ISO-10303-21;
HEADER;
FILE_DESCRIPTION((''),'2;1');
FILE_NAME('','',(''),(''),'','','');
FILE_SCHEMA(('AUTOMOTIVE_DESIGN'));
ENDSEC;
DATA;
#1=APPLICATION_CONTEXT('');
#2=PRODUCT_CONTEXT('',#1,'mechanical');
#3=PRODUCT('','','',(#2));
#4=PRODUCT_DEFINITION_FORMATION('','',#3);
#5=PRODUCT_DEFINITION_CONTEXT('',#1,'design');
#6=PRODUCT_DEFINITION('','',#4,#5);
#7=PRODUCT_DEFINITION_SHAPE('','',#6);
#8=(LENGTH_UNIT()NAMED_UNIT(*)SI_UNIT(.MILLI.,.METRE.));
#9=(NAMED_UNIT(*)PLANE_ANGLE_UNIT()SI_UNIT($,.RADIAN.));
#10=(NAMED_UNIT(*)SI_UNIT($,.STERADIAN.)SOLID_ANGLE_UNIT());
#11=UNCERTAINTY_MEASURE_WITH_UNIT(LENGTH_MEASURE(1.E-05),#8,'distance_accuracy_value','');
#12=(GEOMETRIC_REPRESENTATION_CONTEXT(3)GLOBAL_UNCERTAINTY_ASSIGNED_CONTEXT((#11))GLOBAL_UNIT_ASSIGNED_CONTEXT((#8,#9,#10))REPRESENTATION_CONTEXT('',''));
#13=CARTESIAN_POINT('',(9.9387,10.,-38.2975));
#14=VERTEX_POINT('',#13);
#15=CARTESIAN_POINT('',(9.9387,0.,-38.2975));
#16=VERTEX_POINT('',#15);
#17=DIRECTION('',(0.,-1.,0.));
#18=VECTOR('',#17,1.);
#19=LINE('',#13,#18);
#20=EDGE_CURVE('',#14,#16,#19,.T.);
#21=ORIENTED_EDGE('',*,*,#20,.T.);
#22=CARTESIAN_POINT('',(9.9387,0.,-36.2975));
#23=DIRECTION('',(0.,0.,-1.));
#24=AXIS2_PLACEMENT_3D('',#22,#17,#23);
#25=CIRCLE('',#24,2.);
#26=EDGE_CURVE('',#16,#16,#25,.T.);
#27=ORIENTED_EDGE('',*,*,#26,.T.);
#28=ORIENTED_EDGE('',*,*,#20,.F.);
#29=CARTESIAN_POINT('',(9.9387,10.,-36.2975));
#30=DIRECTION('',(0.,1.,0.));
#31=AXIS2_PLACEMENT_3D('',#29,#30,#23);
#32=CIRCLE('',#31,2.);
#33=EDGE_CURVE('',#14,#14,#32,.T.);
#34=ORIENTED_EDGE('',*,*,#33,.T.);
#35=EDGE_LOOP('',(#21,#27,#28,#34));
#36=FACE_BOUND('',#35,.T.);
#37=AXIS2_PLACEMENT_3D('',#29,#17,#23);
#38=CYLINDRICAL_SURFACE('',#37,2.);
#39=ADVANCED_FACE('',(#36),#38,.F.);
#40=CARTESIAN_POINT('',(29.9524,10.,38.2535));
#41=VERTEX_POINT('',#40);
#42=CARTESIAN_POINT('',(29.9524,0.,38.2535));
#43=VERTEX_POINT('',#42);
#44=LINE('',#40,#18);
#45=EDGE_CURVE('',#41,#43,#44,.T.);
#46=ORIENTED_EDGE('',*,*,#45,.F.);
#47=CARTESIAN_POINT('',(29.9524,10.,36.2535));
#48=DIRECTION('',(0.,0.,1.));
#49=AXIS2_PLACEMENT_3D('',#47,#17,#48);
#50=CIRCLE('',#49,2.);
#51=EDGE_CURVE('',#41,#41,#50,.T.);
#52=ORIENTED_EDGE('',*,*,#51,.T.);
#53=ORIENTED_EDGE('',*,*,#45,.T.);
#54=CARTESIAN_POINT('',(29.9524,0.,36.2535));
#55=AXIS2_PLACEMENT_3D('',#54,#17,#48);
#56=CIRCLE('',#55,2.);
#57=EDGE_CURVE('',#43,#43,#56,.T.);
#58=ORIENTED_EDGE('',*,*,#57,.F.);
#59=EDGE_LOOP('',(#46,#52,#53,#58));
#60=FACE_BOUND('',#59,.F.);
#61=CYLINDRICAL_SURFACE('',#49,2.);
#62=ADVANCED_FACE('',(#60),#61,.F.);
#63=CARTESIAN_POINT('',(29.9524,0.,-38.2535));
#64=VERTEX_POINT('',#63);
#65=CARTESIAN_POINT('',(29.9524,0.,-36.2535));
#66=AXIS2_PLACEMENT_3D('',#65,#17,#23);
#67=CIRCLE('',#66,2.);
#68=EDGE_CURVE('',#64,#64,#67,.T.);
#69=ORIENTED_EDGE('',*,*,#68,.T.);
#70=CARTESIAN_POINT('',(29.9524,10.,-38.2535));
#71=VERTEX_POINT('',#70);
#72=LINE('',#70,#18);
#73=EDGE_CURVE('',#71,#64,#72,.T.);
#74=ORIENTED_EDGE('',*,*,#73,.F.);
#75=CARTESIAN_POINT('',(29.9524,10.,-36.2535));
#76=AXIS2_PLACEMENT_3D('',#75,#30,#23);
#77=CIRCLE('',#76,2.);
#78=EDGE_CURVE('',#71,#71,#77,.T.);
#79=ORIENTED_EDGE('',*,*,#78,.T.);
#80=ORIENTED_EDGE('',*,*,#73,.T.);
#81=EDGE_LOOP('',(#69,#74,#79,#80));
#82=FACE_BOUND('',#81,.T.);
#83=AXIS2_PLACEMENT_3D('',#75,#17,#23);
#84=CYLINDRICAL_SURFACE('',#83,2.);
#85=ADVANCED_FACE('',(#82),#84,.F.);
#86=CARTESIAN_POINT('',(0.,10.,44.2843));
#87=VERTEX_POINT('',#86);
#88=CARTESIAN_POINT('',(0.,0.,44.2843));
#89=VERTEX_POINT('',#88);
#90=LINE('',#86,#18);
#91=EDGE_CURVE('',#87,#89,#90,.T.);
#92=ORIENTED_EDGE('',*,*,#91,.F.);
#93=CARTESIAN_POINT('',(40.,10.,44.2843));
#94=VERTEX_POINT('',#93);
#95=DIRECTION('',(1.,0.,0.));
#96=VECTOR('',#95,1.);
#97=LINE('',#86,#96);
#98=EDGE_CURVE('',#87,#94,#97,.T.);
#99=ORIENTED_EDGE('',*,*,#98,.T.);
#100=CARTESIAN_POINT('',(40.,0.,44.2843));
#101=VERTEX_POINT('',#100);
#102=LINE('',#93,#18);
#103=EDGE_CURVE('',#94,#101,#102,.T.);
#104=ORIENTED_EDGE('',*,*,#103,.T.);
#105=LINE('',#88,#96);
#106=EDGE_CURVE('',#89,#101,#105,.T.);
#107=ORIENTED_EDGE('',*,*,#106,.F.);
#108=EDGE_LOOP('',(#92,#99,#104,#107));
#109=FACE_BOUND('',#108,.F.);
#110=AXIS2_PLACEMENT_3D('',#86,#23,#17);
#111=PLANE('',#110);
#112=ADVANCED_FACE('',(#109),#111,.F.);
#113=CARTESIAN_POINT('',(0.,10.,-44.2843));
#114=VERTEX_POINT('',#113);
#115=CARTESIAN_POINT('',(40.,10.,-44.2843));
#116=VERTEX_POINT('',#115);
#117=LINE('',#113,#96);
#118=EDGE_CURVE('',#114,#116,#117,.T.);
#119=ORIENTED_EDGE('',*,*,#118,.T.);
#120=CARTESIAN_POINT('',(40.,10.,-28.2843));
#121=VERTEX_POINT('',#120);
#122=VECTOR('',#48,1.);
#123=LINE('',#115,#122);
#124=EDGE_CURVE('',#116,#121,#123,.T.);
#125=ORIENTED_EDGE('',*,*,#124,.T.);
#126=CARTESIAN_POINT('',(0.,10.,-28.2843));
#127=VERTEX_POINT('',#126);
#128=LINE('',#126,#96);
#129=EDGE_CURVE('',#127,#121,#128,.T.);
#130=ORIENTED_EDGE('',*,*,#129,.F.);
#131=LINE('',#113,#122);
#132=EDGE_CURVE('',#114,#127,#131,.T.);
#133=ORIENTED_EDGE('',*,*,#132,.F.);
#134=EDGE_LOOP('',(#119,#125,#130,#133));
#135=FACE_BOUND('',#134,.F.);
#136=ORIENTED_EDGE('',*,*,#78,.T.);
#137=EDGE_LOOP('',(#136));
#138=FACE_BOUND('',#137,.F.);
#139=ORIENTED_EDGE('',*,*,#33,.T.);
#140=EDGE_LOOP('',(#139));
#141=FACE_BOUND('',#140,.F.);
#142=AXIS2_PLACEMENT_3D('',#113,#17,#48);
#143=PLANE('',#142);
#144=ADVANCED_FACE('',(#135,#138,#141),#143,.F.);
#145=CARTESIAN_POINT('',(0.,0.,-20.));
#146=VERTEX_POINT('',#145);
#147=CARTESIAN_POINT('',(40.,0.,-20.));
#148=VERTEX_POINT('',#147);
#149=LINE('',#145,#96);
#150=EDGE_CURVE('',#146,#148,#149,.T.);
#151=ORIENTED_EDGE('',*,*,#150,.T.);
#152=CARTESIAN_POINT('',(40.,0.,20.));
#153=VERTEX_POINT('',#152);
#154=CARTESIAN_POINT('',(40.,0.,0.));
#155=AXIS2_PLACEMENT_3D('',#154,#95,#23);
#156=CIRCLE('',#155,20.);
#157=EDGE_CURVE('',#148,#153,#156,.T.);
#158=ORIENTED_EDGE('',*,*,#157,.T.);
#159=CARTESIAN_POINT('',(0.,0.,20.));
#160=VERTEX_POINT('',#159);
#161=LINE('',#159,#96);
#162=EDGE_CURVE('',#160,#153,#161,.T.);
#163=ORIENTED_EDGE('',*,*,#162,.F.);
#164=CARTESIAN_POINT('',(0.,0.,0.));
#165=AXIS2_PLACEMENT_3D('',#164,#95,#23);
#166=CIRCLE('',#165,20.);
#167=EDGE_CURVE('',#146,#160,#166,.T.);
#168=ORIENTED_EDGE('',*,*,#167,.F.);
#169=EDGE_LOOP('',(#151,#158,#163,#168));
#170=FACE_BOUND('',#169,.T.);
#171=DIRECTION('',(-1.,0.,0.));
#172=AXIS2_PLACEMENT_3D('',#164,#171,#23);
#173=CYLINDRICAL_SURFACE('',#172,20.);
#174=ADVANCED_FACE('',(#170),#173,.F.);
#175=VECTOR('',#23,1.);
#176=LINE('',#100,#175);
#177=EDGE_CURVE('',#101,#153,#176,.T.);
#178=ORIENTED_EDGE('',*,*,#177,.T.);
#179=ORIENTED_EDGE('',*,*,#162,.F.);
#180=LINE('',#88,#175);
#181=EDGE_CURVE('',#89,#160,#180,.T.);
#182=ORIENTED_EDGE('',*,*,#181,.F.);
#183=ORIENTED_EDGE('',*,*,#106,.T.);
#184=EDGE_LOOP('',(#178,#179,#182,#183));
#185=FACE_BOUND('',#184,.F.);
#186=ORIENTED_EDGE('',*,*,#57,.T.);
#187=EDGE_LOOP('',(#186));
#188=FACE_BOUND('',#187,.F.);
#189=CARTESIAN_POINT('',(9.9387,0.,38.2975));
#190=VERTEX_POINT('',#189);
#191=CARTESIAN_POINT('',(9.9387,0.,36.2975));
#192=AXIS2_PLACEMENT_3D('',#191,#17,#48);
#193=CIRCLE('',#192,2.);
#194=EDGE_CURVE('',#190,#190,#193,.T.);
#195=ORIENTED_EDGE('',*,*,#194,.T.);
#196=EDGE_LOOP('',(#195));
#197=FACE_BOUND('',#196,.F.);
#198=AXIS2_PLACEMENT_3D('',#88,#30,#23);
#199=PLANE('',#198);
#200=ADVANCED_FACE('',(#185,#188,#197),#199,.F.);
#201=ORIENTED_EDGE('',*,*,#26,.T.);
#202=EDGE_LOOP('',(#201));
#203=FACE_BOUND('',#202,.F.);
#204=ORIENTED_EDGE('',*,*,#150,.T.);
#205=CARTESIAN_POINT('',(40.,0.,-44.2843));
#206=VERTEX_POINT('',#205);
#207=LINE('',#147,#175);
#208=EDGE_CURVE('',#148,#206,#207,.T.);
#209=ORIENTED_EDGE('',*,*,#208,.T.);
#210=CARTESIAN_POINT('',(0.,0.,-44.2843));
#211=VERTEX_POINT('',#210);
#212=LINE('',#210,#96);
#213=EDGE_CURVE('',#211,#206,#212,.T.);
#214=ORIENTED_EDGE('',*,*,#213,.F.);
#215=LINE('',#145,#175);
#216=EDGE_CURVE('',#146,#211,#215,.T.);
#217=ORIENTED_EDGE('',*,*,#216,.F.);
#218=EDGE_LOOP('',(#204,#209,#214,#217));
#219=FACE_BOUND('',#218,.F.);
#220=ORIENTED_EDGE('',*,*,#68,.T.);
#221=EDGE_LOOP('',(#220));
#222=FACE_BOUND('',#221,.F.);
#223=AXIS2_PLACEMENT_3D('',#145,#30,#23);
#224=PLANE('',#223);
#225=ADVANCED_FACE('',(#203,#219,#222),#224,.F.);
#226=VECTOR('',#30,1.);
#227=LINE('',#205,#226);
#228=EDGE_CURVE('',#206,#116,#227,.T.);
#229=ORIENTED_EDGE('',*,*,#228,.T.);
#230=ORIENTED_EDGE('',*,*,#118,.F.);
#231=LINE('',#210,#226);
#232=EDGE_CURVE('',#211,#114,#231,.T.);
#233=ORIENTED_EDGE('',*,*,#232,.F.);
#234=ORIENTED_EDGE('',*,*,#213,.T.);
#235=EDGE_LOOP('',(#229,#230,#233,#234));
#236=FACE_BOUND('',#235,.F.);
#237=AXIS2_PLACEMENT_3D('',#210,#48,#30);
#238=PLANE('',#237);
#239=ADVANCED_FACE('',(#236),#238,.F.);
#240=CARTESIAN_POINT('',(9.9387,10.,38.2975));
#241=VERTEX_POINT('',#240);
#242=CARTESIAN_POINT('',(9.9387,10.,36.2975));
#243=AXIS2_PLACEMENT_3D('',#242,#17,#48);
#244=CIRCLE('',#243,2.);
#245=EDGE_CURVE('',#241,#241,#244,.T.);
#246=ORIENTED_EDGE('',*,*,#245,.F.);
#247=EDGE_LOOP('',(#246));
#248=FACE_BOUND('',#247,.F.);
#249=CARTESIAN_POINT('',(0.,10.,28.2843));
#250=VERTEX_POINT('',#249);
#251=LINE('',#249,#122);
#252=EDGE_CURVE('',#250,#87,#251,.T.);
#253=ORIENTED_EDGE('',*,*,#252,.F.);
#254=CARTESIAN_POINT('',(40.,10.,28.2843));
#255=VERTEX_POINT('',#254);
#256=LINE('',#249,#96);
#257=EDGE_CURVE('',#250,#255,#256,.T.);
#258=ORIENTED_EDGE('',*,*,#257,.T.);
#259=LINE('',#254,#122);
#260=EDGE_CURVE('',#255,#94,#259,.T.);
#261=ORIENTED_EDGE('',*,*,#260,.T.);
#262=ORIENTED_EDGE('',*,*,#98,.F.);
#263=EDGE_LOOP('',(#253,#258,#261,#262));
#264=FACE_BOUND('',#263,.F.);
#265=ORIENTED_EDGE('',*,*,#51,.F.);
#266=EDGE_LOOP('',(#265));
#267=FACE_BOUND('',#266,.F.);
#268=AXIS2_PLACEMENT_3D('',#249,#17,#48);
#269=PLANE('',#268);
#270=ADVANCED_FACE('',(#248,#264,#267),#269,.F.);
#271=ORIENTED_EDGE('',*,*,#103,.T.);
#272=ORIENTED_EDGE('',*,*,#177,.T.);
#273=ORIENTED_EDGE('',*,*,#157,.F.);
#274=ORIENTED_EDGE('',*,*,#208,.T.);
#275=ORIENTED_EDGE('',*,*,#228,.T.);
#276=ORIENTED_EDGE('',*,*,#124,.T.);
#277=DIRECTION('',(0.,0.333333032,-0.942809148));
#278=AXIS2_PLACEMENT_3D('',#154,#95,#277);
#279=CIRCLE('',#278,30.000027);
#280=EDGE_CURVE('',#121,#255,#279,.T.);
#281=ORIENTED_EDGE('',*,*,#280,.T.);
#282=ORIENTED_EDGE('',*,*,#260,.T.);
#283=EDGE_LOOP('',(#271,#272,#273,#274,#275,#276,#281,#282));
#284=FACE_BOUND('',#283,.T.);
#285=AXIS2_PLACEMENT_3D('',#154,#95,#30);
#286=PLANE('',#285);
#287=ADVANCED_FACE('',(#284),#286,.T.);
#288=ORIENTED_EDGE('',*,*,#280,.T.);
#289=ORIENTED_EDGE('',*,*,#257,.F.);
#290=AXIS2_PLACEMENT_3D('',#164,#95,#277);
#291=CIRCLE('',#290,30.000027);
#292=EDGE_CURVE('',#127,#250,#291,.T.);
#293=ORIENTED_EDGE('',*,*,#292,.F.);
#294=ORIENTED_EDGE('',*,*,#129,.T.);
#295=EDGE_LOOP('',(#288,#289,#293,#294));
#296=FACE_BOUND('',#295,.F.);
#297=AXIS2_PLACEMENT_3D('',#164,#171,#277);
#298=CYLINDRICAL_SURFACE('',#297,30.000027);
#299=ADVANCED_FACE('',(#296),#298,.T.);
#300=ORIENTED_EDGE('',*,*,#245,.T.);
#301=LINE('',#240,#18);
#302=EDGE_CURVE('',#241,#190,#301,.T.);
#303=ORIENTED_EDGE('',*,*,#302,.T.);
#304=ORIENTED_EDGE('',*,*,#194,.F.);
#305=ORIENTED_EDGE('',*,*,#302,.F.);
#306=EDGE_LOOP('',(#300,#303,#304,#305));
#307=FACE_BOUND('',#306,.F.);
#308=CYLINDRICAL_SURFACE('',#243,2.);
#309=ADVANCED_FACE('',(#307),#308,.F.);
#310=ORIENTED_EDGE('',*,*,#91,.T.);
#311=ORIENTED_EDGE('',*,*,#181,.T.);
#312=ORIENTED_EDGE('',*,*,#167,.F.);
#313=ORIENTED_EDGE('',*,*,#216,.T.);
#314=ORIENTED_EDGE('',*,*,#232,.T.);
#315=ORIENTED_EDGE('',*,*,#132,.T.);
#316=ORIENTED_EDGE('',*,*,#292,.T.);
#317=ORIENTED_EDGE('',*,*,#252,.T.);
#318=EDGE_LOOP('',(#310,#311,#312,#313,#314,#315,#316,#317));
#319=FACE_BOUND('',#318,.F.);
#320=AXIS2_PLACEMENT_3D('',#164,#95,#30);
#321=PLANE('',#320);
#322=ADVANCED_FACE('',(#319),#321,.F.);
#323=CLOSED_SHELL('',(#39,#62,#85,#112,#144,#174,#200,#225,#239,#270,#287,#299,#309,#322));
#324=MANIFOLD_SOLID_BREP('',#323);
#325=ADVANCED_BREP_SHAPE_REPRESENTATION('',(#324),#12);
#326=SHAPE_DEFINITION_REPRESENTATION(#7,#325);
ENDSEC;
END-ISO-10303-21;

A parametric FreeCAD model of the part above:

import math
import FreeCAD as App
import Part
import Sketcher

doc = App.newDocument("Part")
params = doc.addObject("Spreadsheet::Sheet", "Params")
for row, (alias, value) in enumerate([
    ("sketch1_radius", "20 mm"),
    ("sketch1_radius2", "30 mm"),
    ("sketch1_width", "10 mm"),
    ("sketch1_height", "16 mm"),
    ("pad1_length", "40 mm"),
    ("sketch2_diameter", "4 mm"),
    ("hole_diameter", "4 mm"),
], start=1):
    params.set(f"A{row}", alias)
    params.set(f"B{row}", "=" + value)
    params.setAlias(f"B{row}", alias)

body = doc.addObject("PartDesign::Body", "Body")

sketch1 = body.newObject("Sketcher::SketchObject", "Sketch")
sketch1.AttachmentSupport = (doc.getObject("YZ_Plane"), [""])
sketch1.MapMode = "FlatFace"
sketch1.addGeometry([
    Part.ArcOfCircle(Part.Circle(App.Vector(0, 0, 0), App.Vector(0, 0, 1), 20), math.radians(-90), math.radians(90)),
    Part.LineSegment(App.Vector(0, -20, 0), App.Vector(0, -44.2843, 0)),
    Part.LineSegment(App.Vector(0, -44.2843, 0), App.Vector(10, -44.2843, 0)),
    Part.LineSegment(App.Vector(10, -44.2843, 0), App.Vector(10, -28.2843, 0)),
    Part.ArcOfCircle(Part.Circle(App.Vector(0, 0, 0), App.Vector(0, 0, 1), 30.000027), math.radians(-70.528798), math.radians(70.528798)),
    Part.LineSegment(App.Vector(10, 28.2843, 0), App.Vector(10, 44.2843, 0)),
    Part.LineSegment(App.Vector(10, 44.2843, 0), App.Vector(0, 44.2843, 0)),
    Part.LineSegment(App.Vector(0, 44.2843, 0), App.Vector(0, 20, 0)),
], False)
sketch1.addConstraint([
    Sketcher.Constraint("Coincident", 0, 1, 1, 1),
    Sketcher.Constraint("Coincident", 1, 2, 2, 1),
    Sketcher.Constraint("Coincident", 2, 2, 3, 1),
    Sketcher.Constraint("Coincident", 3, 2, 4, 1),
    Sketcher.Constraint("Coincident", 4, 2, 5, 1),
    Sketcher.Constraint("Coincident", 5, 2, 6, 1),
    Sketcher.Constraint("Coincident", 6, 2, 7, 1),
    Sketcher.Constraint("Coincident", 7, 2, 0, 2),
    Sketcher.Constraint("Vertical", 1),
    Sketcher.Constraint("Horizontal", 2),
    Sketcher.Constraint("Vertical", 3),
    Sketcher.Constraint("Vertical", 5),
    Sketcher.Constraint("Horizontal", 6),
    Sketcher.Constraint("Vertical", 7),
    Sketcher.Constraint("Coincident", 0, 3, -1, 1),
    Sketcher.Constraint("Coincident", 4, 3, -1, 1),
    Sketcher.Constraint("Symmetric", 1, 2, 6, 2, -1, 1),
    Sketcher.Constraint("PointOnObject", 0, 1, -2),
    Sketcher.Constraint("Vertical", 3, 2, 4, 2),
    Sketcher.Constraint("Radius", 0, 20.0),
    Sketcher.Constraint("Radius", 4, 30.0),
    Sketcher.Constraint("DistanceX", 2, 1, 2, 2, 10.0),
    Sketcher.Constraint("DistanceY", 3, 1, 3, 2, 16.0),
])
sketch1.setExpression("Constraints[19]", "Params.sketch1_radius")
sketch1.setExpression("Constraints[20]", "Params.sketch1_radius2")
sketch1.setExpression("Constraints[21]", "Params.sketch1_width")
sketch1.setExpression("Constraints[22]", "Params.sketch1_height")
pad1 = body.newObject("PartDesign::Pad", "Pad")
pad1.Profile = sketch1
pad1.setExpression("Length", "Params.pad1_length")

sketch2 = body.newObject("Sketcher::SketchObject", "Sketch001")
sketch2.AttachmentSupport = (doc.getObject("XZ_Plane"), [""])
sketch2.MapMode = "FlatFace"
sketch2.AttachmentOffset = App.Placement(App.Vector(0, 0, -10), App.Rotation())
sketch2.addGeometry([
    Part.Circle(App.Vector(9.9387, 36.2975, 0), App.Vector(0, 0, 1), 2),
    Part.Circle(App.Vector(29.9524, 36.2535, 0), App.Vector(0, 0, 1), 2),
], False)
sketch2.addConstraint([
    Sketcher.Constraint("Equal", 0, 1),
    Sketcher.Constraint("Diameter", 0, 4.0),
    Sketcher.Constraint("DistanceY", 1, 3, 0, 3, 0.044),
    Sketcher.Constraint("DistanceX", -1, 1, 0, 3, 9.9387),
    Sketcher.Constraint("DistanceY", -1, 1, 0, 3, 36.2975),
    Sketcher.Constraint("DistanceX", -1, 1, 1, 3, 29.9524),
])
sketch2.setExpression("Constraints[1]", "Params.sketch2_diameter")
doc.recompute()
hole = body.newObject("PartDesign::Hole", "Hole")
hole.Profile = sketch2
hole.ThreadType = "None"
hole.setExpression("Diameter", "Params.hole_diameter")
hole.DepthType = "ThroughAll"
hole.Reversed = True
doc.recompute()

mirrored = body.newObject("PartDesign::Mirrored", "Mirrored")
mirrored.Originals = [hole]
mirrored.MirrorPlane = (doc.getObject("XY_Plane"), [""])
body.Tip = mirrored

doc.recompute()
